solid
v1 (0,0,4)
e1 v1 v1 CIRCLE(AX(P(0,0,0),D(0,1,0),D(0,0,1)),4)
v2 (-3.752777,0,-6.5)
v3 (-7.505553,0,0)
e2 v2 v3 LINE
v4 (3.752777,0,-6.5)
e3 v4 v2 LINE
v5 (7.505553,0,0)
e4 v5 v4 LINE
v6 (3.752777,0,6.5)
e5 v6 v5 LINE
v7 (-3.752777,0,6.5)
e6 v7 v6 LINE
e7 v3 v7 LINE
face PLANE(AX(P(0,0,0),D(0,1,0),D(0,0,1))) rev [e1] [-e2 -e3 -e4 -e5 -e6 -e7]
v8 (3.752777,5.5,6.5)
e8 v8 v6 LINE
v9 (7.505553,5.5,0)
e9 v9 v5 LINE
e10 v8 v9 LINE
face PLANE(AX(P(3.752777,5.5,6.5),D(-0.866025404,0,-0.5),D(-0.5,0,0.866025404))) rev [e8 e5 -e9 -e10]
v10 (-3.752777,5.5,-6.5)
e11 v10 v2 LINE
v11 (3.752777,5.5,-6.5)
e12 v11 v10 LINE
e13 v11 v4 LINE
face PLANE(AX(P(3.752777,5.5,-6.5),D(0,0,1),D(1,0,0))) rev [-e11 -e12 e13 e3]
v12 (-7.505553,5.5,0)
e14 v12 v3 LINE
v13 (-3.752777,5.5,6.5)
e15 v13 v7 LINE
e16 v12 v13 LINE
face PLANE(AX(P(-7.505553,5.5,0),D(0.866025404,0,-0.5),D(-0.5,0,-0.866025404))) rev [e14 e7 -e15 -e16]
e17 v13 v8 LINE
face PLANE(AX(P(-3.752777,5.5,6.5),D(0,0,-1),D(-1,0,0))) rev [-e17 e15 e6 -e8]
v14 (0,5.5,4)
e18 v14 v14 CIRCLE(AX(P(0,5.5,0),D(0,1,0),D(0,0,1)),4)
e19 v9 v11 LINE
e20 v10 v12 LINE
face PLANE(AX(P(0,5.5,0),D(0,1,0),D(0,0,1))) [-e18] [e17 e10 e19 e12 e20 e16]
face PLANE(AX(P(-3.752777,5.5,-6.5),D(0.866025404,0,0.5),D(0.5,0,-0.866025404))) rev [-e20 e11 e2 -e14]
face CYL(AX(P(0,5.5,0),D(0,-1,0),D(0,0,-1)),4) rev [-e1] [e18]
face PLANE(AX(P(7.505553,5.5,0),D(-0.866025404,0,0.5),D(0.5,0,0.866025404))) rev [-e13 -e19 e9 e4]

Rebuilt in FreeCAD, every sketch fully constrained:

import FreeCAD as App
import Part
import Sketcher
Q = App.Units.Quantity

doc = App.newDocument("Part")
body = doc.addObject("PartDesign::Body", "Body")

# Sketch on XZ plane
sketch1 = body.newObject("Sketcher::SketchObject", "Sketch")
sketch1.AttachmentSupport = (doc.getObject("XZ_Plane"), [""])
sketch1.MapMode = "FlatFace"
sketch1.addGeometry([
    Part.LineSegment(App.Vector(-3.752777, -6.5, 0), App.Vector(-7.505553, 0, 0)),  # 0
    Part.LineSegment(App.Vector(-7.505553, 0, 0), App.Vector(-3.752777, 6.5, 0)),  # 1
    Part.LineSegment(App.Vector(-3.752777, 6.5, 0), App.Vector(3.752777, 6.5, 0)),  # 2
    Part.LineSegment(App.Vector(3.752777, 6.5, 0), App.Vector(7.505553, 0, 0)),  # 3
    Part.LineSegment(App.Vector(7.505553, 0, 0), App.Vector(3.752777, -6.5, 0)),  # 4
    Part.LineSegment(App.Vector(3.752777, -6.5, 0), App.Vector(-3.752777, -6.5, 0)),  # 5
    Part.Circle(App.Vector(0, 0, 0), App.Vector(0, 0, 1), 4),  # 6
], False)
sketch1.addConstraint([
    Sketcher.Constraint("Coincident", 0, 2, 1, 1),
    Sketcher.Constraint("Coincident", 1, 2, 2, 1),
    Sketcher.Constraint("Coincident", 2, 2, 3, 1),
    Sketcher.Constraint("Coincident", 3, 2, 4, 1),
    Sketcher.Constraint("Coincident", 4, 2, 5, 1),
    Sketcher.Constraint("Coincident", 5, 2, 0, 1),
    Sketcher.Constraint("Horizontal", 2),
    Sketcher.Constraint("Horizontal", 5),
    Sketcher.Constraint("Coincident", 6, 3, -1, 1),
    Sketcher.Constraint("Symmetric", 0, 2, 3, 2, -1, 1),
    Sketcher.Constraint("Symmetric", 1, 2, 4, 2, -1, 1),
    Sketcher.Constraint("PointOnObject", 0, 2, -1),
    Sketcher.Constraint("Parallel", 0, 3),
    Sketcher.Constraint("Vertical", 2, 2, 4, 2),
    Sketcher.Constraint("Diameter", 6, 8.0),
    Sketcher.Constraint("Angle", 0, Q("120 deg")),
    Sketcher.Constraint("DistanceY", 4, 2, 2, 2, 13.0),
    Sketcher.Constraint("DistanceX", 2, 1, 2, 2, 7.505554),
])
pad1 = body.newObject("PartDesign::Pad", "Pad")
pad1.Profile = sketch1
pad1.Length = 5.5
pad1.Reversed = True

doc.recompute()
